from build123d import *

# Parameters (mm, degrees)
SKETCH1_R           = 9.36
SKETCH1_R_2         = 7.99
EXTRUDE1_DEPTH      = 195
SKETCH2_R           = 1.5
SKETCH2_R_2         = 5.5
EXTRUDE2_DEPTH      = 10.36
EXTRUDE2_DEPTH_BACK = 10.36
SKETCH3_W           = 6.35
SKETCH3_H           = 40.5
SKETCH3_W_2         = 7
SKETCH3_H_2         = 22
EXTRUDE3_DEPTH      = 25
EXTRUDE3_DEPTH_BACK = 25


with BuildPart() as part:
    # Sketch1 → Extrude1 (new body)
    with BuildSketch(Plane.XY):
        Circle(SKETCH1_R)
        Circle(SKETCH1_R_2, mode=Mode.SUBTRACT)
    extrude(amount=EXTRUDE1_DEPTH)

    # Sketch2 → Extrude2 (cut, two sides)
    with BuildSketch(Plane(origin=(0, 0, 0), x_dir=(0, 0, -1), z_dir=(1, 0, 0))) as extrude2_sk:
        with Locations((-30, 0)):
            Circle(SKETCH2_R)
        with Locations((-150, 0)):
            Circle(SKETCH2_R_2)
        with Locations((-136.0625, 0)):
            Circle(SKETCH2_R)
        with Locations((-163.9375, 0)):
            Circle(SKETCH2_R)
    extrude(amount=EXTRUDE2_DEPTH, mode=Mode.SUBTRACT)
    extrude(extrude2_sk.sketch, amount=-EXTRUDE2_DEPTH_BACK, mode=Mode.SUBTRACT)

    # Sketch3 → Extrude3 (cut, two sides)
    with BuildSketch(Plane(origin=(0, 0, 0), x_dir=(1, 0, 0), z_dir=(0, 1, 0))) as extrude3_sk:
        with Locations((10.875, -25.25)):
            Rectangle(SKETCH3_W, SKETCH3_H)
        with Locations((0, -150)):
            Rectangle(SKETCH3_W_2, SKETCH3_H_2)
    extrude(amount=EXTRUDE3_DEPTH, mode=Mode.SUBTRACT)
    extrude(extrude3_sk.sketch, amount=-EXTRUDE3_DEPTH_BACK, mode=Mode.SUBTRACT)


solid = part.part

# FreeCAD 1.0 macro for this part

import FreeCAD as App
import Part
import Sketcher
Q = App.Units.Quantity


def add_polygon(sketch, points):
    """Adds a closed chain of lines whose ends are joined by coincident constraints."""
    first, n = sketch.GeometryCount, len(points)
    for a, b in zip(points, points[1:] + points[:1]):
        sketch.addGeometry(Part.LineSegment(App.Vector(*a, 0), App.Vector(*b, 0)), False)
    for i in range(n):
        sketch.addConstraint(Sketcher.Constraint("Coincident", first + i, 2, first + (i + 1) % n, 1))

doc = App.newDocument("Part")
body = doc.addObject("PartDesign::Body", "Body")

sketch1 = doc.addObject("Sketcher::SketchObject", "Sketch")
body.addObject(sketch1)
sketch1.AttachmentSupport = (doc.XY_Plane, [""])
sketch1.MapMode = "FlatFace"
sketch1.addGeometry(Part.Circle(App.Vector(0, 0, 0), App.Vector(0, 0, 1), 9.36), False)
sketch1.addGeometry(Part.Circle(App.Vector(0, 0, 0), App.Vector(0, 0, 1), 7.99), False)
sketch1.addConstraint(Sketcher.Constraint("Coincident", 0, 3, -1, 1))
sketch1.addConstraint(Sketcher.Constraint("Coincident", 1, 3, -1, 1))
sketch1.addConstraint(Sketcher.Constraint("Diameter", 0, Q("18.72 mm")))
sketch1.addConstraint(Sketcher.Constraint("Diameter", 1, Q("15.98 mm")))
pad1 = doc.addObject("PartDesign::Pad", "Pad")
body.addObject(pad1)
pad1.Profile = sketch1
pad1.Length = 195

sketch2 = doc.addObject("Sketcher::SketchObject", "Sketch001")
body.addObject(sketch2)
sketch2.AttachmentSupport = (doc.YZ_Plane, [""])
sketch2.MapMode = "FlatFace"
sketch2.addGeometry(Part.Circle(App.Vector(0, 30, 0), App.Vector(0, 0, 1), 1.5), False)
sketch2.addGeometry(Part.Circle(App.Vector(0, 150, 0), App.Vector(0, 0, 1), 5.5), False)
sketch2.addGeometry(Part.Circle(App.Vector(0, 136.0625, 0), App.Vector(0, 0, 1), 1.5), False)
sketch2.addGeometry(Part.Circle(App.Vector(0, 163.9375, 0), App.Vector(0, 0, 1), 1.5), False)
sketch2.addConstraint(Sketcher.Constraint("Equal", 0, 2))
sketch2.addConstraint(Sketcher.Constraint("Equal", 2, 3))
sketch2.addConstraint(Sketcher.Constraint("PointOnObject", 0, 3, -2))
sketch2.addConstraint(Sketcher.Constraint("PointOnObject", 1, 3, -2))
sketch2.addConstraint(Sketcher.Constraint("PointOnObject", 2, 3, -2))
sketch2.addConstraint(Sketcher.Constraint("PointOnObject", 3, 3, -2))
sketch2.addConstraint(Sketcher.Constraint("Diameter", 0, Q("3 mm")))
sketch2.addConstraint(Sketcher.Constraint("Diameter", 1, Q("11 mm")))
sketch2.addConstraint(Sketcher.Constraint("DistanceY", -1, 1, 0, 3, Q("30 mm")))
sketch2.addConstraint(Sketcher.Constraint("DistanceY", -1, 1, 1, 3, Q("150 mm")))
sketch2.addConstraint(Sketcher.Constraint("DistanceY", 2, 3, 3, 3, Q("27.875 mm")))
sketch2.addConstraint(Sketcher.Constraint("DistanceY", -1, 1, 2, 3, Q("136.0625 mm")))
pocket1 = doc.addObject("PartDesign::Pocket", "Pocket")
body.addObject(pocket1)
pocket1.Profile = sketch2
pocket1.Type = "ThroughAll"
pocket1.Midplane = True

sketch3 = doc.addObject("Sketcher::SketchObject", "Sketch002")
body.addObject(sketch3)
sketch3.AttachmentSupport = (doc.XZ_Plane, [""])
sketch3.MapMode = "FlatFace"
add_polygon(sketch3, [(7.7, 5), (7.7, 45.5), (14.05, 45.5), (14.05, 5)])
add_polygon(sketch3, [(-3.5, 139), (-3.5, 161), (3.5, 161), (3.5, 139)])
sketch3.addConstraint(Sketcher.Constraint("Vertical", 0))
sketch3.addConstraint(Sketcher.Constraint("Horizontal", 1))
sketch3.addConstraint(Sketcher.Constraint("Vertical", 2))
sketch3.addConstraint(Sketcher.Constraint("Horizontal", 3))
sketch3.addConstraint(Sketcher.Constraint("Vertical", 4))
sketch3.addConstraint(Sketcher.Constraint("Horizontal", 5))
sketch3.addConstraint(Sketcher.Constraint("Vertical", 6))
sketch3.addConstraint(Sketcher.Constraint("Horizontal", 7))
sketch3.addConstraint(Sketcher.Constraint("DistanceX", 5, 1, 5, 2, Q("7 mm")))
sketch3.addConstraint(Sketcher.Constraint("DistanceY", 4, 1, 4, 2, Q("22 mm")))
sketch3.addConstraint(Sketcher.Constraint("DistanceY", 0, 1, 0, 2, Q("40.5 mm")))
sketch3.addConstraint(Sketcher.Constraint("DistanceY", -1, 1, 2, 2, Q("5 mm")))
sketch3.addConstraint(Sketcher.Constraint("DistanceY", -1, 1, 4, 2, Q("161 mm")))
sketch3.addConstraint(Sketcher.Constraint("DistanceX", 1, 1, 1, 2, Q("6.35 mm")))
sketch3.addConstraint(Sketcher.Constraint("DistanceX", -1, 1, 0, 2, Q("7.7 mm")))
sketch3.addConstraint(Sketcher.Constraint("DistanceX", 4, 2, -1, 1, Q("3.5 mm")))
pocket2 = doc.addObject("PartDesign::Pocket", "Pocket001")
body.addObject(pocket2)
pocket2.Profile = sketch3
pocket2.Type = "ThroughAll"
pocket2.Midplane = True

doc.recompute()
